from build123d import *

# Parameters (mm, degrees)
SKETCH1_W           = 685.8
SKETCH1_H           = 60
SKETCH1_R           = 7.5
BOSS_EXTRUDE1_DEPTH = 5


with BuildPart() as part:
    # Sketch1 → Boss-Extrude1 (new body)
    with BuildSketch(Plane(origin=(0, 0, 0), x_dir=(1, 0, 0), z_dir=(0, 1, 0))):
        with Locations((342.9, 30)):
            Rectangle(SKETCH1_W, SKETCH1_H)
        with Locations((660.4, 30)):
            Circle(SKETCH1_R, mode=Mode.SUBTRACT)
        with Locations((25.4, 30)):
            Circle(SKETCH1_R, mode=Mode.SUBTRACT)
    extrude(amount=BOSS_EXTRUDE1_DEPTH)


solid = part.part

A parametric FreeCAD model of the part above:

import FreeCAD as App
import Part
import Sketcher
Q = App.Units.Quantity

doc = App.newDocument("Part")
body = doc.addObject("PartDesign::Body", "Body")

sketch1 = body.newObject("Sketcher::SketchObject", "Sketch")
sketch1.AttachmentSupport = (doc.getObject("XZ_Plane"), [""])
sketch1.MapMode = "FlatFace"
sketch1.addGeometry(Part.LineSegment(App.Vector(0, -60, 0), App.Vector(0, 0, 0)), False)
sketch1.addGeometry(Part.LineSegment(App.Vector(0, 0, 0), App.Vector(685.8, 0, 0)), False)
sketch1.addGeometry(Part.LineSegment(App.Vector(685.8, 0, 0), App.Vector(685.8, -60, 0)), False)
sketch1.addGeometry(Part.LineSegment(App.Vector(685.8, -60, 0), App.Vector(0, -60, 0)), False)
sketch1.addGeometry(Part.Circle(App.Vector(25.4, -30, 0), App.Vector(0, 0, 1), 7.5), False)
sketch1.addGeometry(Part.Circle(App.Vector(660.4, -30, 0), App.Vector(0, 0, 1), 7.5), False)
sketch1.addConstraint(Sketcher.Constraint("Coincident", 0, 2, 1, 1))
sketch1.addConstraint(Sketcher.Constraint("Coincident", 1, 2, 2, 1))
sketch1.addConstraint(Sketcher.Constraint("Coincident", 2, 2, 3, 1))
sketch1.addConstraint(Sketcher.Constraint("Coincident", 3, 2, 0, 1))
sketch1.addConstraint(Sketcher.Constraint("Vertical", 0))
sketch1.addConstraint(Sketcher.Constraint("Horizontal", 1))
sketch1.addConstraint(Sketcher.Constraint("Vertical", 2))
sketch1.addConstraint(Sketcher.Constraint("Horizontal", 3))
sketch1.addConstraint(Sketcher.Constraint("Coincident", 0, 2, -1, 1))
sketch1.addConstraint(Sketcher.Constraint("Equal", 4, 5))
sketch1.addConstraint(Sketcher.Constraint("Horizontal", 4, 3, 5, 3))
sketch1.addConstraint(Sketcher.Constraint("Diameter", 4, Q("15 mm")))
sketch1.addConstraint(Sketcher.Constraint("DistanceY", 0, 1, 0, 2, Q("60 mm")))
sketch1.addConstraint(Sketcher.Constraint("DistanceX", 1, 1, 1, 2, Q("685.8 mm")))
sketch1.addConstraint(Sketcher.Constraint("DistanceY", 4, 3, -1, 1, Q("30 mm")))
sketch1.addConstraint(Sketcher.Constraint("DistanceX", 4, 3, 5, 3, Q("635 mm")))
sketch1.addConstraint(Sketcher.Constraint("DistanceX", -1, 1, 4, 3, Q("25.4 mm")))
pad1 = body.newObject("PartDesign::Pad", "Pad")
pad1.Profile = sketch1
pad1.Length = 5
pad1.Reversed = True

doc.recompute()
